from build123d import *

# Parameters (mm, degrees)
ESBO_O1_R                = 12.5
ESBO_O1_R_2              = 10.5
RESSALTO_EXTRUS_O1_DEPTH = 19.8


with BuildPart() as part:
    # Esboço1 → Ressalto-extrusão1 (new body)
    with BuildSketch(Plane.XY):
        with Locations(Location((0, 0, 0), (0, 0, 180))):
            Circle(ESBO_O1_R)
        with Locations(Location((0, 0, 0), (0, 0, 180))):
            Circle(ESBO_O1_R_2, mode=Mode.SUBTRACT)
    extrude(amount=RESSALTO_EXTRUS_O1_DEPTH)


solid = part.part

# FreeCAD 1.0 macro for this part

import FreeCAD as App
import Part
import Sketcher

V = App.Vector
Q = App.Units.Quantity

doc = App.newDocument("Part")
body = doc.addObject("PartDesign::Body", "Body")

# Sketch on XY plane
sketch1 = body.newObject("Sketcher::SketchObject", "Sketch")
sketch1.AttachmentSupport = (doc.getObject("XY_Plane"), [""])
sketch1.MapMode = "FlatFace"
sketch1.addGeometry([
    Part.Circle(V(0, 0, 0), V(0, 0, 1), 12.5),
    Part.Circle(V(0, 0, 0), V(0, 0, 1), 10.5),
], False)
sketch1.addConstraint([
    Sketcher.Constraint("Coincident", 0, 3, -1, 1),
    Sketcher.Constraint("Coincident", 1, 3, -1, 1),
    Sketcher.Constraint("Diameter", 0, Q("25 mm")),
    Sketcher.Constraint("Diameter", 1, Q("21 mm")),
])
pad1 = body.newObject("PartDesign::Pad", "Pad")
pad1.Profile = sketch1
pad1.Length = 19.8

doc.recompute()
